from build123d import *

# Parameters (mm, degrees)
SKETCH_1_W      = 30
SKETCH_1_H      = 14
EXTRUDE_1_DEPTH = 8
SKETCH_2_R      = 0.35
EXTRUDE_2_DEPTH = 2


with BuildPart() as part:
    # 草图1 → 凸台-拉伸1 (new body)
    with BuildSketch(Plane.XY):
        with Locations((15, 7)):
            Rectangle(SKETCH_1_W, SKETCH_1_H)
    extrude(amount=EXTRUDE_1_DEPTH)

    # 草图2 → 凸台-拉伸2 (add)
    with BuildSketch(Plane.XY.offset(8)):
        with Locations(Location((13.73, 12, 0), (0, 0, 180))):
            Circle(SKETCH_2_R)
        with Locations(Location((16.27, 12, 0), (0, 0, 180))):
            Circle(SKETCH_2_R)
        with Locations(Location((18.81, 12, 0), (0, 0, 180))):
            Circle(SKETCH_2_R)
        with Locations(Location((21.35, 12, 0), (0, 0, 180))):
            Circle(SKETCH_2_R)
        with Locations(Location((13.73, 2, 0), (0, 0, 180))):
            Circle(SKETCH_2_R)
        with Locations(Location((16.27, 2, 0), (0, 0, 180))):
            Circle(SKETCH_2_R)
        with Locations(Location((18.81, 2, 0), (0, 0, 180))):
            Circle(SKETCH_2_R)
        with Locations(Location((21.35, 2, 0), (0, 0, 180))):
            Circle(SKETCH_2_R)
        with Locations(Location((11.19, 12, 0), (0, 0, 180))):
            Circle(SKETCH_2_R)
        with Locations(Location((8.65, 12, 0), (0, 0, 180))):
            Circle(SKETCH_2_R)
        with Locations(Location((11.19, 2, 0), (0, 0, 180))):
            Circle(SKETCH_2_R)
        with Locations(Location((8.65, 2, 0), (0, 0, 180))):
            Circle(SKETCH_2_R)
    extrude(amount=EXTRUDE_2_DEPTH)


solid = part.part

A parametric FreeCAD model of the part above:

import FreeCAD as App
import Part
import Sketcher
from FreeCAD import Vector
Q = App.Units.Quantity


def add_polygon(sketch, points):
    """Adds a closed chain of lines whose ends are joined by coincident constraints."""
    first, n = sketch.GeometryCount, len(points)
    for a, b in zip(points, points[1:] + points[:1]):
        sketch.addGeometry(Part.LineSegment(App.Vector(*a, 0), App.Vector(*b, 0)), False)
    for i in range(n):
        sketch.addConstraint(Sketcher.Constraint("Coincident", first + i, 2, first + (i + 1) % n, 1))

doc = App.newDocument("Part")
body = doc.addObject("PartDesign::Body", "Body")

# Sketch on XY plane
sketch1 = body.newObject("Sketcher::SketchObject", "Sketch")
sketch1.AttachmentSupport = (doc.getObject("XY_Plane"), [""])
sketch1.MapMode = "FlatFace"
add_polygon(sketch1, [(0, 14), (0, 0), (30, 0), (30, 14)])  # lines 0-3
sketch1.addConstraint(Sketcher.Constraint("Vertical", 0))
sketch1.addConstraint(Sketcher.Constraint("Horizontal", 1))
sketch1.addConstraint(Sketcher.Constraint("Vertical", 2))
sketch1.addConstraint(Sketcher.Constraint("Horizontal", 3))
sketch1.addConstraint(Sketcher.Constraint("Coincident", 0, 2, -1, 1))
sketch1.addConstraint(Sketcher.Constraint("DistanceX", 1, 1, 1, 2, Q("30 mm")))
sketch1.addConstraint(Sketcher.Constraint("DistanceY", 0, 2, 0, 1, Q("14 mm")))
pad1 = body.newObject("PartDesign::Pad", "Pad")
pad1.Profile = sketch1
pad1.Length = 8

# Sketch on XY plane
sketch2 = body.newObject("Sketcher::SketchObject", "Sketch001")
sketch2.AttachmentSupport = (doc.getObject("XY_Plane"), [""])
sketch2.MapMode = "FlatFace"
sketch2.AttachmentOffset = App.Placement(Vector(0, 0, 8), App.Rotation())
sketch2.addGeometry(Part.Circle(Vector(13.73, 12, 0), Vector(0, 0, 1), 0.35), False)
sketch2.addGeometry(Part.Circle(Vector(16.27, 12, 0), Vector(0, 0, 1), 0.35), False)
sketch2.addGeometry(Part.Circle(Vector(18.81, 12, 0), Vector(0, 0, 1), 0.35), False)
sketch2.addGeometry(Part.Circle(Vector(21.35, 12, 0), Vector(0, 0, 1), 0.35), False)
sketch2.addGeometry(Part.Circle(Vector(13.73, 2, 0), Vector(0, 0, 1), 0.35), False)
sketch2.addGeometry(Part.Circle(Vector(16.27, 2, 0), Vector(0, 0, 1), 0.35), False)
sketch2.addGeometry(Part.Circle(Vector(18.81, 2, 0), Vector(0, 0, 1), 0.35), False)
sketch2.addGeometry(Part.Circle(Vector(21.35, 2, 0), Vector(0, 0, 1), 0.35), False)
sketch2.addGeometry(Part.Circle(Vector(11.19, 12, 0), Vector(0, 0, 1), 0.35), False)
sketch2.addGeometry(Part.Circle(Vector(8.65, 12, 0), Vector(0, 0, 1), 0.35), False)
sketch2.addGeometry(Part.Circle(Vector(11.19, 2, 0), Vector(0, 0, 1), 0.35), False)
sketch2.addGeometry(Part.Circle(Vector(8.65, 2, 0), Vector(0, 0, 1), 0.35), False)
sketch2.addConstraint(Sketcher.Constraint("Equal", 0, 1))
sketch2.addConstraint(Sketcher.Constraint("Equal", 1, 2))
sketch2.addConstraint(Sketcher.Constraint("Equal", 2, 3))
sketch2.addConstraint(Sketcher.Constraint("Equal", 3, 4))
sketch2.addConstraint(Sketcher.Constraint("Equal", 4, 5))
sketch2.addConstraint(Sketcher.Constraint("Equal", 5, 6))
sketch2.addConstraint(Sketcher.Constraint("Equal", 6, 7))
sketch2.addConstraint(Sketcher.Constraint("Equal", 7, 8))
sketch2.addConstraint(Sketcher.Constraint("Equal", 8, 9))
sketch2.addConstraint(Sketcher.Constraint("Equal", 9, 10))
sketch2.addConstraint(Sketcher.Constraint("Equal", 10, 11))
sketch2.addConstraint(Sketcher.Constraint("Horizontal", 0, 3, 1, 3))
sketch2.addConstraint(Sketcher.Constraint("Horizontal", 1, 3, 2, 3))
sketch2.addConstraint(Sketcher.Constraint("Horizontal", 2, 3, 3, 3))
sketch2.addConstraint(Sketcher.Constraint("Horizontal", 4, 3, 5, 3))
sketch2.addConstraint(Sketcher.Constraint("Horizontal", 5, 3, 6, 3))
sketch2.addConstraint(Sketcher.Constraint("Horizontal", 6, 3, 7, 3))
sketch2.addConstraint(Sketcher.Constraint("Horizontal", 3, 3, 8, 3))
sketch2.addConstraint(Sketcher.Constraint("Horizontal", 8, 3, 9, 3))
sketch2.addConstraint(Sketcher.Constraint("Horizontal", 7, 3, 10, 3))
sketch2.addConstraint(Sketcher.Constraint("Horizontal", 10, 3, 11, 3))
sketch2.addConstraint(Sketcher.Constraint("Vertical", 0, 3, 4, 3))
sketch2.addConstraint(Sketcher.Constraint("Vertical", 1, 3, 5, 3))
sketch2.addConstraint(Sketcher.Constraint("Vertical", 2, 3, 6, 3))
sketch2.addConstraint(Sketcher.Constraint("Vertical", 3, 3, 7, 3))
sketch2.addConstraint(Sketcher.Constraint("Vertical", 8, 3, 10, 3))
sketch2.addConstraint(Sketcher.Constraint("Vertical", 9, 3, 11, 3))
sketch2.addConstraint(Sketcher.Constraint("Diameter", 0, Q("0.7 mm")))
sketch2.addConstraint(Sketcher.Constraint("DistanceY", -1, 1, 0, 3, Q("12 mm")))
sketch2.addConstraint(Sketcher.Constraint("DistanceY", -1, 1, 4, 3, Q("2 mm")))
sketch2.addConstraint(Sketcher.Constraint("DistanceX", -1, 1, 0, 3, Q("13.73 mm")))
sketch2.addConstraint(Sketcher.Constraint("DistanceX", -1, 1, 1, 3, Q("16.27 mm")))
sketch2.addConstraint(Sketcher.Constraint("DistanceX", -1, 1, 2, 3, Q("18.81 mm")))
sketch2.addConstraint(Sketcher.Constraint("DistanceX", -1, 1, 3, 3, Q("21.35 mm")))
sketch2.addConstraint(Sketcher.Constraint("DistanceX", -1, 1, 8, 3, Q("11.19 mm")))
sketch2.addConstraint(Sketcher.Constraint("DistanceX", -1, 1, 9, 3, Q("8.65 mm")))
pad2 = body.newObject("PartDesign::Pad", "Pad001")
pad2.Profile = sketch2
pad2.Length = 2

doc.recompute()
